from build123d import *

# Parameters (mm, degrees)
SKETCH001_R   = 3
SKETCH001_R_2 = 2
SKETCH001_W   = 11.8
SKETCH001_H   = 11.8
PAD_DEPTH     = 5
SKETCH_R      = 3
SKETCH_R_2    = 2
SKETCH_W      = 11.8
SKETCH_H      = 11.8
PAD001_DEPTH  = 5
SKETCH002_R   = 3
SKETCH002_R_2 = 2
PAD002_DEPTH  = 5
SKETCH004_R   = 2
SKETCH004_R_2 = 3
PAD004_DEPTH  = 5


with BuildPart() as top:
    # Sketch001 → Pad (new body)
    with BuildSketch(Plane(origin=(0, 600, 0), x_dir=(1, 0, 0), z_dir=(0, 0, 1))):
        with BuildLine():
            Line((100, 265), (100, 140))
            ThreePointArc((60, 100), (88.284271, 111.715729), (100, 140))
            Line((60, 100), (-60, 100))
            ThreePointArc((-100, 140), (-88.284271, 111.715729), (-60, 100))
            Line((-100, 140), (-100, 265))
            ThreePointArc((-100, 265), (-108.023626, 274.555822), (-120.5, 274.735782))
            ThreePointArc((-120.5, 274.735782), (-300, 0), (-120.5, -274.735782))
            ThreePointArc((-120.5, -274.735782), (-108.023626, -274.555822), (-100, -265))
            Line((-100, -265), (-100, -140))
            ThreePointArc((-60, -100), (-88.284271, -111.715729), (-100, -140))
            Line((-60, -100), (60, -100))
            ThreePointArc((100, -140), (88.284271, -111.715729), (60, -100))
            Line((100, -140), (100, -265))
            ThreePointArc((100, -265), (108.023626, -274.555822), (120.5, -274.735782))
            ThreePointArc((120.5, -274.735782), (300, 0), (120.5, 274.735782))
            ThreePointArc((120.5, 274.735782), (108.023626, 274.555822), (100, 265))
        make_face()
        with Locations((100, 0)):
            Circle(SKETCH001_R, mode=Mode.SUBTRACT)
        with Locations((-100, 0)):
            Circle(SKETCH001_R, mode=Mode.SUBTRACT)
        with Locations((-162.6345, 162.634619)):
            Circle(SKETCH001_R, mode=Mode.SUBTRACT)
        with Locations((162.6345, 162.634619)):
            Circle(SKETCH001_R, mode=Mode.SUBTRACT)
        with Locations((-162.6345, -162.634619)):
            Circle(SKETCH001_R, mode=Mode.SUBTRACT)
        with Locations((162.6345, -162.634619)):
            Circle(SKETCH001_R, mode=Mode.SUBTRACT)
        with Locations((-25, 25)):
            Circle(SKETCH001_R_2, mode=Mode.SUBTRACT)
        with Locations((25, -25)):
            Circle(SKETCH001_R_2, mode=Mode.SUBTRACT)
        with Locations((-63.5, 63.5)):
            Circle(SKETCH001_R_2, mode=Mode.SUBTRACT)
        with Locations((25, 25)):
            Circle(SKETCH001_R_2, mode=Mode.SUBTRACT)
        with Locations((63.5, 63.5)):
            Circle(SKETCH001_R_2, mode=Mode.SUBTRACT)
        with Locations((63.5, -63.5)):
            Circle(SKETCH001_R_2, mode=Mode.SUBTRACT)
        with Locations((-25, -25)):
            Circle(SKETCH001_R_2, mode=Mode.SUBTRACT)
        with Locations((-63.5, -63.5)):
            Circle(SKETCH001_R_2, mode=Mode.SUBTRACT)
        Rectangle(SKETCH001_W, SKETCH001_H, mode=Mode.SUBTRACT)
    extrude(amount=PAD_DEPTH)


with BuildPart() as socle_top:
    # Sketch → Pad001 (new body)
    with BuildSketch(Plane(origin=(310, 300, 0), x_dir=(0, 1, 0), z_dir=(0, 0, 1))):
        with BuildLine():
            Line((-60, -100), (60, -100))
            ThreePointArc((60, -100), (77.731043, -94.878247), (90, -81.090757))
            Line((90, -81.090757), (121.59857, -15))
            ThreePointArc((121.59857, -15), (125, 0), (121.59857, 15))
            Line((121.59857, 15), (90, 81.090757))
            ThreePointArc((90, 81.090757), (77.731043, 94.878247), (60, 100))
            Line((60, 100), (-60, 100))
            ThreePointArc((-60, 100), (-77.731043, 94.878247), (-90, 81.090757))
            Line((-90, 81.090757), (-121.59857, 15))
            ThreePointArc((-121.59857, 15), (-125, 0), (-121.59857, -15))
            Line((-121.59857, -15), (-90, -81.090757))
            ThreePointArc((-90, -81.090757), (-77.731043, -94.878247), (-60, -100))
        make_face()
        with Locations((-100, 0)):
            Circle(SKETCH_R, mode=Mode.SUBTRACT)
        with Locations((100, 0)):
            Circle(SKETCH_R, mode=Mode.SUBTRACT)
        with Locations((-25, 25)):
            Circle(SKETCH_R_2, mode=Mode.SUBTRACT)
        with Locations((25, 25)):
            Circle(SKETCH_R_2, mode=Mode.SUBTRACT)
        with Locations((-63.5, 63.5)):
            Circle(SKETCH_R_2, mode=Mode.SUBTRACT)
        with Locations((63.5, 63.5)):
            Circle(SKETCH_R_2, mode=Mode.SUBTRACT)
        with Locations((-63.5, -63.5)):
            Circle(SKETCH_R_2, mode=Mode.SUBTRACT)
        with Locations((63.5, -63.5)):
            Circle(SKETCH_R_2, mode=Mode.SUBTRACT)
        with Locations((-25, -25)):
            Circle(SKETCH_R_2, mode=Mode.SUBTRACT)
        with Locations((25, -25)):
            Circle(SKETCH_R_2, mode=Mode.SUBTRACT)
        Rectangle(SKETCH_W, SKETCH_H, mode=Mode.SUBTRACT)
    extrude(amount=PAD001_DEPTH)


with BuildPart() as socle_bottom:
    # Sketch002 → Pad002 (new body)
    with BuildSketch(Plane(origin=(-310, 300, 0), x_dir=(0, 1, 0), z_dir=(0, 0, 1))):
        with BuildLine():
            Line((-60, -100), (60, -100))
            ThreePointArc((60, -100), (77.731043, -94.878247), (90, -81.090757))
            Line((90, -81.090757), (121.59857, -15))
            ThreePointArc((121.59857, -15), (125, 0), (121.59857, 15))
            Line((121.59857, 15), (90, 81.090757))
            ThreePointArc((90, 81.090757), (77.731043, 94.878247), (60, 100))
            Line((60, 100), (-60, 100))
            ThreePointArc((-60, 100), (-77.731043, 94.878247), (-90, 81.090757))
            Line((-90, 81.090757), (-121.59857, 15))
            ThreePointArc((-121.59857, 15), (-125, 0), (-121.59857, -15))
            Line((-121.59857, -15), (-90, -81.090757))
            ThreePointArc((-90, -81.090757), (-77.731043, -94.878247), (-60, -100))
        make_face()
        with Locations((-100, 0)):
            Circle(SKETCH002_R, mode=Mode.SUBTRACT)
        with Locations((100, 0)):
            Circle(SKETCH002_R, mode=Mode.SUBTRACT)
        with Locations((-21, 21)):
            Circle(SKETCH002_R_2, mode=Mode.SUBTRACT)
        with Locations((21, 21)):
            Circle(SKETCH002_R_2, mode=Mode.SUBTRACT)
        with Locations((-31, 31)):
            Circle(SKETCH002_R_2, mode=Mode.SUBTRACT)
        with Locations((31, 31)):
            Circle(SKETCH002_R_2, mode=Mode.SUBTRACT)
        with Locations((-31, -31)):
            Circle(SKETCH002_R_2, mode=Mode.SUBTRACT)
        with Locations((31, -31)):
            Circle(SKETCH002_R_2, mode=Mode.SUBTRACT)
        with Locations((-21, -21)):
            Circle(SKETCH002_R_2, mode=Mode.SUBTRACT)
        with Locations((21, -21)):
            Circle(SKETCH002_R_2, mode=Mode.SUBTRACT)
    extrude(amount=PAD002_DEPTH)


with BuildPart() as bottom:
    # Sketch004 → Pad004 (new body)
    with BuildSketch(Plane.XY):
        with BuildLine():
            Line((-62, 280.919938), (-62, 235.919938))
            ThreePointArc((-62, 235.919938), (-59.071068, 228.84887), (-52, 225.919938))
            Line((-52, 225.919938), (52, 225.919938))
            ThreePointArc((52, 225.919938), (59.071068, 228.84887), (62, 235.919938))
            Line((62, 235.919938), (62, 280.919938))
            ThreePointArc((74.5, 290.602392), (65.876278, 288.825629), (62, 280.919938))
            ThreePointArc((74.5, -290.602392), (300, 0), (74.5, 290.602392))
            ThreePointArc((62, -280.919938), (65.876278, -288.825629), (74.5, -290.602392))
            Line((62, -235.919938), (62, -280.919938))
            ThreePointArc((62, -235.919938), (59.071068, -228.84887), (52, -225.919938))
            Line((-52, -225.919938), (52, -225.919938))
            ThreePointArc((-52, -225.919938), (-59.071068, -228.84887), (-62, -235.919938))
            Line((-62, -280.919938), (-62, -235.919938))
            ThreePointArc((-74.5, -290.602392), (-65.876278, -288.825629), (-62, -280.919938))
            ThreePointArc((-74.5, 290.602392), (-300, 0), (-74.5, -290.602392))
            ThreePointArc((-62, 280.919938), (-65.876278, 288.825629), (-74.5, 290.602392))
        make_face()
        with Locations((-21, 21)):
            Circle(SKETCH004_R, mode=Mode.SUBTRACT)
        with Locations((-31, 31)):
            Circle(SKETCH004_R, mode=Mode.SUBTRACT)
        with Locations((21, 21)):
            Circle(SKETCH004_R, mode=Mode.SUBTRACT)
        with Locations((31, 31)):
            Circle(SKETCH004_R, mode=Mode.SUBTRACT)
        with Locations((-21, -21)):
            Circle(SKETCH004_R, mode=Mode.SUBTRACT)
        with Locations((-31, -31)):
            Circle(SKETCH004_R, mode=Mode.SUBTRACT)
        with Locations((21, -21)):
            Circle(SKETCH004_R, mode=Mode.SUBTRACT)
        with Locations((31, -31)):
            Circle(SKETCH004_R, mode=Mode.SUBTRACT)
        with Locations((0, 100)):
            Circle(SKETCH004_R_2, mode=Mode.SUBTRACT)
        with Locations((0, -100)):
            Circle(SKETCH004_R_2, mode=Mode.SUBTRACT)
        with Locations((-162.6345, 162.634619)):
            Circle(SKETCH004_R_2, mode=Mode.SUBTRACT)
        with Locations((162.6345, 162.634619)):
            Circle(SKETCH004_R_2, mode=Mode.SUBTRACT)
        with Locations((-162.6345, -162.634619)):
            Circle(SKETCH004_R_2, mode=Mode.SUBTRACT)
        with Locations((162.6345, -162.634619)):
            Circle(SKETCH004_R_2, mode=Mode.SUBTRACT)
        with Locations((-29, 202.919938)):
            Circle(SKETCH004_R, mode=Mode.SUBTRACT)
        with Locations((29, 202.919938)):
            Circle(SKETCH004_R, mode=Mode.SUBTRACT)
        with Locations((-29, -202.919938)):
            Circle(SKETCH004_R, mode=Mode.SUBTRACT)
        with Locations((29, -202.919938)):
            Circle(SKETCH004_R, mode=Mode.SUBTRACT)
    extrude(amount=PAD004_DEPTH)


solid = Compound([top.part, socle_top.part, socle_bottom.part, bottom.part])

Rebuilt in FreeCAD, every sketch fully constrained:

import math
import FreeCAD as App
import Part
import Sketcher
Q = App.Units.Quantity

doc = App.newDocument("Part")
body = doc.addObject("PartDesign::Body", "Body")

sketch1 = body.newObject("Sketcher::SketchObject", "Sketch")
sketch1.AttachmentSupport = (doc.getObject("XY_Plane"), [""])
sketch1.MapMode = "FlatFace"
sketch1.addGeometry([
    Part.LineSegment(App.Vector(100, 865, 0), App.Vector(100, 740, 0)),
    Part.ArcOfCircle(Part.Circle(App.Vector(59.999999, 740.000001, 0), App.Vector(0, 0, 1), 40.000001), math.radians(-89.999999), math.radians(-0.000001)),
    Part.LineSegment(App.Vector(60, 700, 0), App.Vector(-60, 700, 0)),
    Part.ArcOfCircle(Part.Circle(App.Vector(-59.999999, 740.000001, 0), App.Vector(0, 0, 1), 40.000001), math.radians(-179.999999), math.radians(-90.000001)),
    Part.LineSegment(App.Vector(-100, 740, 0), App.Vector(-100, 865, 0)),
    Part.ArcOfCircle(Part.Circle(App.Vector(-114.458551, 861.00622, 0), App.Vector(0, 0, 1), 14.999999), math.radians(15.441362), math.radians(113.751038)),
    Part.ArcOfCircle(Part.Circle(App.Vector(0, 600, 0), App.Vector(0, 0, 1), 300), math.radians(113.682411), math.radians(246.317589)),
    Part.ArcOfCircle(Part.Circle(App.Vector(-114.458551, 338.99378, 0), App.Vector(0, 0, 1), 14.999999), math.radians(-113.751038), math.radians(-15.441362)),
    Part.LineSegment(App.Vector(-100, 335, 0), App.Vector(-100, 460, 0)),
    Part.ArcOfCircle(Part.Circle(App.Vector(-59.999999, 459.999999, 0), App.Vector(0, 0, 1), 40.000001), math.radians(90.000001), math.radians(179.999999)),
    Part.LineSegment(App.Vector(-60, 500, 0), App.Vector(60, 500, 0)),
    Part.ArcOfCircle(Part.Circle(App.Vector(59.999999, 459.999999, 0), App.Vector(0, 0, 1), 40.000001), math.radians(0.000001), math.radians(89.999999)),
    Part.LineSegment(App.Vector(100, 460, 0), App.Vector(100, 335, 0)),
    Part.ArcOfCircle(Part.Circle(App.Vector(114.458551, 338.99378, 0), App.Vector(0, 0, 1), 14.999999), math.radians(-164.558638), math.radians(-66.248962)),
    Part.ArcOfCircle(Part.Circle(App.Vector(0, 600, 0), App.Vector(0, 0, 1), 300), math.radians(-66.317589), math.radians(66.317589)),
    Part.ArcOfCircle(Part.Circle(App.Vector(114.458551, 861.00622, 0), App.Vector(0, 0, 1), 14.999999), math.radians(66.248962), math.radians(164.558638)),
    Part.Circle(App.Vector(-162.6345, 437.365381, 0), App.Vector(0, 0, 1), 3),
    Part.Circle(App.Vector(-63.5, 536.5, 0), App.Vector(0, 0, 1), 2),
    Part.Circle(App.Vector(-25, 575, 0), App.Vector(0, 0, 1), 2),
    Part.Circle(App.Vector(162.6345, 437.365381, 0), App.Vector(0, 0, 1), 3),
    Part.Circle(App.Vector(63.5, 536.5, 0), App.Vector(0, 0, 1), 2),
    Part.Circle(App.Vector(25, 575, 0), App.Vector(0, 0, 1), 2),
    Part.Circle(App.Vector(-100, 600, 0), App.Vector(0, 0, 1), 3),
    Part.Circle(App.Vector(-25, 625, 0), App.Vector(0, 0, 1), 2),
    Part.Circle(App.Vector(-63.5, 663.5, 0), App.Vector(0, 0, 1), 2),
    Part.Circle(App.Vector(-162.6345, 762.634619, 0), App.Vector(0, 0, 1), 3),
    Part.LineSegment(App.Vector(5.9, 594.1, 0), App.Vector(-5.9, 594.1, 0)),
    Part.LineSegment(App.Vector(-5.9, 594.1, 0), App.Vector(-5.9, 605.9, 0)),
    Part.LineSegment(App.Vector(-5.9, 605.9, 0), App.Vector(5.9, 605.9, 0)),
    Part.LineSegment(App.Vector(5.9, 605.9, 0), App.Vector(5.9, 594.1, 0)),
    Part.Circle(App.Vector(25, 625, 0), App.Vector(0, 0, 1), 2),
    Part.Circle(App.Vector(63.5, 663.5, 0), App.Vector(0, 0, 1), 2),
    Part.Circle(App.Vector(100, 600, 0), App.Vector(0, 0, 1), 3),
    Part.Circle(App.Vector(162.6345, 762.634619, 0), App.Vector(0, 0, 1), 3),
], False)
sketch1.addConstraint([
    Sketcher.Constraint("Tangent", 0, 2, 1, 2),
    Sketcher.Constraint("Tangent", 1, 1, 2, 1),
    Sketcher.Constraint("Tangent", 2, 2, 3, 2),
    Sketcher.Constraint("Tangent", 3, 1, 4, 1),
    Sketcher.Constraint("Coincident", 4, 2, 5, 1),
    Sketcher.Constraint("Coincident", 5, 2, 6, 1),
    Sketcher.Constraint("Coincident", 6, 2, 7, 1),
    Sketcher.Constraint("Coincident", 7, 2, 8, 1),
    Sketcher.Constraint("Tangent", 8, 2, 9, 2),
    Sketcher.Constraint("Tangent", 9, 1, 10, 1),
    Sketcher.Constraint("Tangent", 10, 2, 11, 2),
    Sketcher.Constraint("Tangent", 11, 1, 12, 1),
    Sketcher.Constraint("Coincident", 12, 2, 13, 1),
    Sketcher.Constraint("Coincident", 13, 2, 14, 1),
    Sketcher.Constraint("Coincident", 14, 2, 15, 1),
    Sketcher.Constraint("Coincident", 15, 2, 0, 1),
    Sketcher.Constraint("Coincident", 26, 2, 27, 1),
    Sketcher.Constraint("Coincident", 27, 2, 28, 1),
    Sketcher.Constraint("Coincident", 28, 2, 29, 1),
    Sketcher.Constraint("Coincident", 29, 2, 26, 1),
    Sketcher.Constraint("Vertical", 0),
    Sketcher.Constraint("Horizontal", 2),
    Sketcher.Constraint("Vertical", 4),
    Sketcher.Constraint("Vertical", 8),
    Sketcher.Constraint("Horizontal", 10),
    Sketcher.Constraint("Vertical", 12),
    Sketcher.Constraint("Horizontal", 26),
    Sketcher.Constraint("Vertical", 27),
    Sketcher.Constraint("Horizontal", 28),
    Sketcher.Constraint("Vertical", 29),
    Sketcher.Constraint("Coincident", 14, 3, 6, 3),
    Sketcher.Constraint("Equal", 1, 3),
    Sketcher.Constraint("Equal", 5, 7),
    Sketcher.Constraint("Equal", 3, 9),
    Sketcher.Constraint("Equal", 9, 11),
    Sketcher.Constraint("Equal", 7, 13),
    Sketcher.Constraint("Equal", 6, 14),
    Sketcher.Constraint("Equal", 13, 15),
    Sketcher.Constraint("Equal", 17, 18),
    Sketcher.Constraint("Equal", 16, 19),
    Sketcher.Constraint("Equal", 18, 20),
    Sketcher.Constraint("Equal", 20, 21),
    Sketcher.Constraint("Equal", 19, 22),
    Sketcher.Constraint("Equal", 21, 23),
    Sketcher.Constraint("Equal", 23, 24),
    Sketcher.Constraint("Equal", 22, 25),
    Sketcher.Constraint("Equal", 24, 30),
    Sketcher.Constraint("Equal", 30, 31),
    Sketcher.Constraint("Equal", 25, 32),
    Sketcher.Constraint("Equal", 32, 33),
    Sketcher.Constraint("Symmetric", 7, 3, 13, 3, -2),
    Sketcher.Constraint("Symmetric", 5, 3, 15, 3, -2),
    Sketcher.Constraint("Symmetric", 16, 3, 19, 3, -2),
    Sketcher.Constraint("Symmetric", 17, 3, 20, 3, -2),
    Sketcher.Constraint("Symmetric", 18, 3, 21, 3, -2),
    Sketcher.Constraint("Symmetric", 23, 3, 30, 3, -2),
    Sketcher.Constraint("Symmetric", 24, 3, 31, 3, -2),
    Sketcher.Constraint("Symmetric", 22, 3, 32, 3, -2),
    Sketcher.Constraint("Symmetric", 25, 3, 33, 3, -2),
    Sketcher.Constraint("PointOnObject", 6, 3, -2),
    Sketcher.Constraint("Horizontal", 14, 3, 22, 3),
    Sketcher.Constraint("Horizontal", 7, 2, 12, 2),
    Sketcher.Constraint("Horizontal", 4, 2, 15, 2),
    Sketcher.Constraint("Vertical", 5, 3, 7, 3),
    Sketcher.Constraint("Vertical", 3, 3, 9, 3),
    Sketcher.Constraint("Vertical", 18, 3, 23, 3),
    Sketcher.Constraint("Vertical", 17, 3, 24, 3),
    Sketcher.Constraint("Vertical", 16, 3, 25, 3),
    Sketcher.Constraint("Vertical", 32, 3, 0, 2),
    Sketcher.Constraint("Vertical", 5, 2, 6, 2),
    Sketcher.Constraint("Equal", 4, 8),
    Sketcher.Constraint("Equal", 28, 27),
    Sketcher.Constraint("Diameter", 16, Q("6 mm")),
    Sketcher.Constraint("Diameter", 17, Q("4 mm")),
    Sketcher.Constraint("Radius", 1, Q("40.000001 mm")),
    Sketcher.Constraint("Radius", 5, Q("14.999999 mm")),
    Sketcher.Constraint("Radius", 6, Q("300 mm")),
    Sketcher.Constraint("DistanceX", 2, 2, 2, 1, Q("120 mm")),
    Sketcher.Constraint("DistanceY", 0, 2, 0, 1, Q("125 mm")),
    Sketcher.Constraint("DistanceX", 26, 2, 26, 1, Q("11.8 mm")),
    Sketcher.Constraint("DistanceY", -1, 1, 1, 3, Q("740.000001 mm")),
    Sketcher.Constraint("DistanceY", -1, 1, 6, 3, Q("600 mm")),
    Sketcher.Constraint("DistanceX", 18, 3, -1, 1, Q("25 mm")),
    Sketcher.Constraint("DistanceY", -1, 1, 18, 3, Q("575 mm")),
    Sketcher.Constraint("DistanceY", -1, 1, 23, 3, Q("625 mm")),
    Sketcher.Constraint("DistanceX", 17, 3, 20, 3, Q("127 mm")),
    Sketcher.Constraint("DistanceX", 6, 2, 17, 3, Q("57 mm")),
    Sketcher.Constraint("DistanceY", -1, 1, 17, 3, Q("536.5 mm")),
    Sketcher.Constraint("DistanceY", -1, 1, 24, 3, Q("663.5 mm")),
    Sketcher.Constraint("DistanceX", 26, 2, -1, 1, Q("5.9 mm")),
    Sketcher.Constraint("DistanceY", -1, 1, 26, 2, Q("594.1 mm")),
    Sketcher.Constraint("DistanceX", 16, 3, -1, 1, Q("162.6345 mm")),
    Sketcher.Constraint("DistanceY", 7, 3, 16, 3, Q("98.371601 mm")),
    Sketcher.Constraint("DistanceY", 25, 3, 5, 3, Q("98.371601 mm")),
])
pad1 = body.newObject("PartDesign::Pad", "Pad")
pad1.Profile = sketch1
pad1.Length = 5
body2 = doc.addObject("PartDesign::Body", "Body001")

sketch2 = body2.newObject("Sketcher::SketchObject", "Sketch001")
sketch2.AttachmentSupport = (doc.getObject("XY_Plane001"), [""])
sketch2.MapMode = "FlatFace"
sketch2.addGeometry([
    Part.LineSegment(App.Vector(410, 240, 0), App.Vector(410, 360, 0)),
    Part.ArcOfCircle(Part.Circle(App.Vector(376.7, 360, 0), App.Vector(0, 0, 1), 33.3), math.radians(0), math.radians(64)),
    Part.LineSegment(App.Vector(391.1, 390, 0), App.Vector(325, 421.6, 0)),
    Part.ArcOfCircle(Part.Circle(App.Vector(310, 390.2, 0), App.Vector(0, 0, 1), 34.8), math.radians(64), math.radians(116)),
    Part.LineSegment(App.Vector(295, 421.6, 0), App.Vector(228.9, 390, 0)),
    Part.ArcOfCircle(Part.Circle(App.Vector(243.3, 360, 0), App.Vector(0, 0, 1), 33.3), math.radians(116), math.radians(180)),
    Part.LineSegment(App.Vector(210, 360, 0), App.Vector(210, 240, 0)),
    Part.ArcOfCircle(Part.Circle(App.Vector(243.3, 240, 0), App.Vector(0, 0, 1), 33.3), math.radians(-180), math.radians(-116)),
    Part.LineSegment(App.Vector(228.9, 210, 0), App.Vector(295, 178.4, 0)),
    Part.ArcOfCircle(Part.Circle(App.Vector(310, 209.8, 0), App.Vector(0, 0, 1), 34.8), math.radians(-116), math.radians(-64)),
    Part.LineSegment(App.Vector(325, 178.4, 0), App.Vector(391.1, 210, 0)),
    Part.ArcOfCircle(Part.Circle(App.Vector(376.7, 240, 0), App.Vector(0, 0, 1), 33.3), math.radians(-64), math.radians(0)),
    Part.Circle(App.Vector(373.5, 236.5, 0), App.Vector(0, 0, 1), 2),
    Part.Circle(App.Vector(335, 275, 0), App.Vector(0, 0, 1), 2),
    Part.Circle(App.Vector(373.5, 363.5, 0), App.Vector(0, 0, 1), 2),
    Part.Circle(App.Vector(335, 325, 0), App.Vector(0, 0, 1), 2),
    Part.Circle(App.Vector(310, 200, 0), App.Vector(0, 0, 1), 3),
    Part.LineSegment(App.Vector(315.9, 305.9, 0), App.Vector(315.9, 294.1, 0)),
    Part.LineSegment(App.Vector(315.9, 294.1, 0), App.Vector(304.1, 294.1, 0)),
    Part.LineSegment(App.Vector(304.1, 294.1, 0), App.Vector(304.1, 305.9, 0)),
    Part.LineSegment(App.Vector(304.1, 305.9, 0), App.Vector(315.9, 305.9, 0)),
    Part.Circle(App.Vector(285, 275, 0), App.Vector(0, 0, 1), 2),
    Part.Circle(App.Vector(246.5, 236.5, 0), App.Vector(0, 0, 1), 2),
    Part.Circle(App.Vector(285, 325, 0), App.Vector(0, 0, 1), 2),
    Part.Circle(App.Vector(310, 400, 0), App.Vector(0, 0, 1), 3),
    Part.Circle(App.Vector(246.5, 363.5, 0), App.Vector(0, 0, 1), 2),
], False)
sketch2.addConstraint([
    Sketcher.Constraint("Tangent", 0, 2, 1, 1),
    Sketcher.Constraint("Tangent", 1, 2, 2, 1),
    Sketcher.Constraint("Tangent", 2, 2, 3, 1),
    Sketcher.Constraint("Tangent", 3, 2, 4, 1),
    Sketcher.Constraint("Tangent", 4, 2, 5, 1),
    Sketcher.Constraint("Tangent", 5, 2, 6, 1),
    Sketcher.Constraint("Tangent", 6, 2, 7, 1),
    Sketcher.Constraint("Tangent", 7, 2, 8, 1),
    Sketcher.Constraint("Tangent", 8, 2, 9, 1),
    Sketcher.Constraint("Tangent", 9, 2, 10, 1),
    Sketcher.Constraint("Tangent", 10, 2, 11, 1),
    Sketcher.Constraint("Tangent", 11, 2, 0, 1),
    Sketcher.Constraint("Coincident", 17, 2, 18, 1),
    Sketcher.Constraint("Coincident", 18, 2, 19, 1),
    Sketcher.Constraint("Coincident", 19, 2, 20, 1),
    Sketcher.Constraint("Coincident", 20, 2, 17, 1),
    Sketcher.Constraint("Vertical", 0),
    Sketcher.Constraint("Vertical", 6),
    Sketcher.Constraint("Vertical", 17),
    Sketcher.Constraint("Horizontal", 18),
    Sketcher.Constraint("Vertical", 19),
    Sketcher.Constraint("Horizontal", 20),
    Sketcher.Constraint("Equal", 1, 5),
    Sketcher.Constraint("Equal", 5, 7),
    Sketcher.Constraint("Equal", 3, 9),
    Sketcher.Constraint("Equal", 7, 11),
    Sketcher.Constraint("Equal", 12, 13),
    Sketcher.Constraint("Equal", 13, 14),
    Sketcher.Constraint("Equal", 14, 15),
    Sketcher.Constraint("Equal", 15, 21),
    Sketcher.Constraint("Equal", 21, 22),
    Sketcher.Constraint("Equal", 22, 23),
    Sketcher.Constraint("Equal", 16, 24),
    Sketcher.Constraint("Equal", 23, 25),
    Sketcher.Constraint("Parallel", 2, 8),
    Sketcher.Constraint("Parallel", 4, 10),
    Sketcher.Constraint("Horizontal", 1, 3, 5, 3),
    Sketcher.Constraint("Horizontal", 7, 3, 11, 3),
    Sketcher.Constraint("Horizontal", 13, 3, 21, 3),
    Sketcher.Constraint("Horizontal", 12, 3, 22, 3),
    Sketcher.Constraint("Horizontal", 15, 3, 23, 3),
    Sketcher.Constraint("Horizontal", 14, 3, 25, 3),
    Sketcher.Constraint("Horizontal", 2, 2, 3, 2),
    Sketcher.Constraint("Vertical", 12, 3, 14, 3),
    Sketcher.Constraint("Vertical", 13, 3, 15, 3),
    Sketcher.Constraint("Vertical", 9, 3, 16, 3),
    Sketcher.Constraint("Vertical", 21, 3, 23, 3),
    Sketcher.Constraint("Vertical", 16, 3, 24, 3),
    Sketcher.Constraint("Vertical", 22, 3, 25, 3),
    Sketcher.Constraint("Equal", 20, 17),
    Sketcher.Constraint("Diameter", 12, Q("4 mm")),
    Sketcher.Constraint("Diameter", 16, Q("6 mm")),
    Sketcher.Constraint("DistanceY", 0, 1, 0, 2, Q("120 mm")),
    Sketcher.Constraint("DistanceX", 18, 2, 18, 1, Q("11.8 mm")),
    Sketcher.Constraint("DistanceY", -1, 1, 1, 3, Q("359.999999 mm")),
    Sketcher.Constraint("DistanceX", -1, 1, 3, 3, Q("310 mm")),
    Sketcher.Constraint("DistanceX", -1, 1, 13, 3, Q("335 mm")),
    Sketcher.Constraint("DistanceY", -1, 1, 13, 3, Q("275 mm")),
    Sketcher.Constraint("DistanceY", -1, 1, 15, 3, Q("325 mm")),
    Sketcher.Constraint("DistanceY", -1, 1, 16, 3, Q("200 mm")),
    Sketcher.Constraint("DistanceX", -1, 1, 21, 3, Q("285 mm")),
    Sketcher.Constraint("DistanceY", -1, 1, 24, 3, Q("400 mm")),
    Sketcher.Constraint("DistanceX", -1, 1, 0, 2, Q("410 mm")),
    Sketcher.Constraint("DistanceY", -1, 1, 1, 2, Q("390 mm")),
    Sketcher.Constraint("DistanceX", -1, 1, 2, 2, Q("325 mm")),
    Sketcher.Constraint("DistanceY", 12, 3, 14, 3, Q("127 mm")),
    Sketcher.Constraint("DistanceX", -1, 1, 12, 3, Q("373.5 mm")),
    Sketcher.Constraint("DistanceY", -1, 1, 12, 3, Q("236.5 mm")),
    Sketcher.Constraint("DistanceX", -1, 1, 22, 3, Q("246.5 mm")),
    Sketcher.Constraint("DistanceX", -1, 1, 17, 2, Q("315.9 mm")),
    Sketcher.Constraint("DistanceY", -1, 1, 17, 2, Q("294.1 mm")),
    Sketcher.Constraint("Radius", 1, Q("33.252508 mm")),
])
pad2 = body2.newObject("PartDesign::Pad", "Pad001")
pad2.Profile = sketch2
pad2.Length = 5
body3 = doc.addObject("PartDesign::Body", "Body002")

sketch3 = body3.newObject("Sketcher::SketchObject", "Sketch002")
sketch3.AttachmentSupport = (doc.getObject("XY_Plane002"), [""])
sketch3.MapMode = "FlatFace"
sketch3.addGeometry([
    Part.LineSegment(App.Vector(-210, 240, 0), App.Vector(-210, 360, 0)),
    Part.ArcOfCircle(Part.Circle(App.Vector(-243.3, 360, 0), App.Vector(0, 0, 1), 33.3), math.radians(0), math.radians(64)),
    Part.LineSegment(App.Vector(-228.9, 390, 0), App.Vector(-295, 421.6, 0)),
    Part.ArcOfCircle(Part.Circle(App.Vector(-310, 390.2, 0), App.Vector(0, 0, 1), 34.8), math.radians(64), math.radians(116)),
    Part.LineSegment(App.Vector(-325, 421.6, 0), App.Vector(-391.1, 390, 0)),
    Part.ArcOfCircle(Part.Circle(App.Vector(-376.7, 360, 0), App.Vector(0, 0, 1), 33.3), math.radians(116), math.radians(180)),
    Part.LineSegment(App.Vector(-410, 360, 0), App.Vector(-410, 240, 0)),
    Part.ArcOfCircle(Part.Circle(App.Vector(-376.7, 240, 0), App.Vector(0, 0, 1), 33.3), math.radians(-180), math.radians(-116)),
    Part.LineSegment(App.Vector(-391.1, 210, 0), App.Vector(-325, 178.4, 0)),
    Part.ArcOfCircle(Part.Circle(App.Vector(-310, 209.8, 0), App.Vector(0, 0, 1), 34.8), math.radians(-116), math.radians(-64)),
    Part.LineSegment(App.Vector(-295, 178.4, 0), App.Vector(-228.9, 210, 0)),
    Part.ArcOfCircle(Part.Circle(App.Vector(-243.3, 240, 0), App.Vector(0, 0, 1), 33.3), math.radians(-64), math.radians(0)),
    Part.Circle(App.Vector(-279, 269, 0), App.Vector(0, 0, 1), 2),
    Part.Circle(App.Vector(-289, 279, 0), App.Vector(0, 0, 1), 2),
    Part.Circle(App.Vector(-279, 331, 0), App.Vector(0, 0, 1), 2),
    Part.Circle(App.Vector(-289, 321, 0), App.Vector(0, 0, 1), 2),
    Part.Circle(App.Vector(-310, 200, 0), App.Vector(0, 0, 1), 3),
    Part.Circle(App.Vector(-331, 279, 0), App.Vector(0, 0, 1), 2),
    Part.Circle(App.Vector(-341, 269, 0), App.Vector(0, 0, 1), 2),
    Part.Circle(App.Vector(-310, 400, 0), App.Vector(0, 0, 1), 3),
    Part.Circle(App.Vector(-331, 321, 0), App.Vector(0, 0, 1), 2),
    Part.Circle(App.Vector(-341, 331, 0), App.Vector(0, 0, 1), 2),
], False)
sketch3.addConstraint([
    Sketcher.Constraint("Tangent", 0, 2, 1, 1),
    Sketcher.Constraint("Tangent", 1, 2, 2, 1),
    Sketcher.Constraint("Tangent", 2, 2, 3, 1),
    Sketcher.Constraint("Tangent", 3, 2, 4, 1),
    Sketcher.Constraint("Tangent", 4, 2, 5, 1),
    Sketcher.Constraint("Tangent", 5, 2, 6, 1),
    Sketcher.Constraint("Tangent", 6, 2, 7, 1),
    Sketcher.Constraint("Tangent", 7, 2, 8, 1),
    Sketcher.Constraint("Tangent", 8, 2, 9, 1),
    Sketcher.Constraint("Tangent", 9, 2, 10, 1),
    Sketcher.Constraint("Tangent", 10, 2, 11, 1),
    Sketcher.Constraint("Tangent", 11, 2, 0, 1),
    Sketcher.Constraint("Vertical", 0),
    Sketcher.Constraint("Vertical", 6),
    Sketcher.Constraint("Equal", 1, 5),
    Sketcher.Constraint("Equal", 5, 7),
    Sketcher.Constraint("Equal", 3, 9),
    Sketcher.Constraint("Equal", 7, 11),
    Sketcher.Constraint("Equal", 12, 13),
    Sketcher.Constraint("Equal", 13, 14),
    Sketcher.Constraint("Equal", 14, 15),
    Sketcher.Constraint("Equal", 15, 17),
    Sketcher.Constraint("Equal", 17, 18),
    Sketcher.Constraint("Equal", 16, 19),
    Sketcher.Constraint("Equal", 18, 20),
    Sketcher.Constraint("Equal", 20, 21),
    Sketcher.Constraint("Parallel", 2, 8),
    Sketcher.Constraint("Parallel", 4, 10),
    Sketcher.Constraint("Horizontal", 1, 3, 5, 3),
    Sketcher.Constraint("Horizontal", 7, 3, 11, 3),
    Sketcher.Constraint("Horizontal", 13, 3, 17, 3),
    Sketcher.Constraint("Horizontal", 12, 3, 18, 3),
    Sketcher.Constraint("Horizontal", 15, 3, 20, 3),
    Sketcher.Constraint("Horizontal", 14, 3, 21, 3),
    Sketcher.Constraint("Horizontal", 2, 2, 3, 2),
    Sketcher.Constraint("Vertical", 12, 3, 14, 3),
    Sketcher.Constraint("Vertical", 13, 3, 15, 3),
    Sketcher.Constraint("Vertical", 9, 3, 16, 3),
    Sketcher.Constraint("Vertical", 16, 3, 19, 3),
    Sketcher.Constraint("Vertical", 17, 3, 20, 3),
    Sketcher.Constraint("Vertical", 18, 3, 21, 3),
    Sketcher.Constraint("Diameter", 12, Q("4 mm")),
    Sketcher.Constraint("Diameter", 16, Q("6 mm")),
    Sketcher.Constraint("DistanceY", 0, 1, 0, 2, Q("120 mm")),
    Sketcher.Constraint("DistanceY", -1, 1, 1, 3, Q("359.999999 mm")),
    Sketcher.Constraint("DistanceX", 3, 3, -1, 1, Q("310 mm")),
    Sketcher.Constraint("DistanceX", 12, 3, -1, 1, Q("279 mm")),
    Sketcher.Constraint("DistanceY", -1, 1, 12, 3, Q("269 mm")),
    Sketcher.Constraint("DistanceX", 13, 3, -1, 1, Q("289 mm")),
    Sketcher.Constraint("DistanceY", -1, 1, 13, 3, Q("279 mm")),
    Sketcher.Constraint("DistanceY", -1, 1, 14, 3, Q("331 mm")),
    Sketcher.Constraint("DistanceY", -1, 1, 15, 3, Q("321 mm")),
    Sketcher.Constraint("DistanceY", -1, 1, 16, 3, Q("200 mm")),
    Sketcher.Constraint("DistanceX", 17, 3, -1, 1, Q("331 mm")),
    Sketcher.Constraint("DistanceX", 18, 3, -1, 1, Q("341 mm")),
    Sketcher.Constraint("DistanceY", -1, 1, 19, 3, Q("400 mm")),
    Sketcher.Constraint("DistanceX", 0, 2, -1, 1, Q("210 mm")),
    Sketcher.Constraint("DistanceY", -1, 1, 1, 2, Q("390 mm")),
    Sketcher.Constraint("DistanceX", 2, 2, -1, 1, Q("295 mm")),
    Sketcher.Constraint("Radius", 1, Q("33.252508 mm")),
])
pad3 = body3.newObject("PartDesign::Pad", "Pad002")
pad3.Profile = sketch3
pad3.Length = 5
body4 = doc.addObject("PartDesign::Body", "Body003")

sketch4 = body4.newObject("Sketcher::SketchObject", "Sketch003")
sketch4.AttachmentSupport = (doc.getObject("XY_Plane003"), [""])
sketch4.MapMode = "FlatFace"
sketch4.addGeometry([
    Part.LineSegment(App.Vector(-62, 235.919938, 0), App.Vector(-62, 280.919938, 0)),
    Part.ArcOfCircle(Part.Circle(App.Vector(-72.000001, 280.919933, 0), App.Vector(0, 0, 1), 10.000001), math.radians(0.000031), math.radians(104.477507)),
    Part.ArcOfCircle(Part.Circle(App.Vector(0.000001, 0, 0), App.Vector(0, 0, 1), 300.000001), math.radians(104.378909), math.radians(255.621091)),
    Part.ArcOfCircle(Part.Circle(App.Vector(-72.000001, -280.919933, 0), App.Vector(0, 0, 1), 10.000001), math.radians(-104.477507), math.radians(-0.000031)),
    Part.LineSegment(App.Vector(-62, -280.919938, 0), App.Vector(-62, -235.919938, 0)),
    Part.ArcOfCircle(Part.Circle(App.Vector(-52.000001, -235.919937, 0), App.Vector(0, 0, 1), 9.999999), math.radians(89.999996), math.radians(180.000004)),
    Part.LineSegment(App.Vector(-52, -225.919938, 0), App.Vector(52, -225.919938, 0)),
    Part.ArcOfCircle(Part.Circle(App.Vector(52.000001, -235.919937, 0), App.Vector(0, 0, 1), 9.999999), math.radians(-0.000004), math.radians(90.000004)),
    Part.LineSegment(App.Vector(62, -235.919938, 0), App.Vector(62, -280.919938, 0)),
    Part.ArcOfCircle(Part.Circle(App.Vector(72.000001, -280.919933, 0), App.Vector(0, 0, 1), 10.000001), math.radians(-179.999969), math.radians(-75.522493)),
    Part.ArcOfCircle(Part.Circle(App.Vector(-0.000001, 0, 0), App.Vector(0, 0, 1), 300.000001), math.radians(-75.621091), math.radians(75.621091)),
    Part.ArcOfCircle(Part.Circle(App.Vector(72.000001, 280.919933, 0), App.Vector(0, 0, 1), 10.000001), math.radians(75.522493), math.radians(179.999969)),
    Part.LineSegment(App.Vector(62, 280.919938, 0), App.Vector(62, 235.919938, 0)),
    Part.ArcOfCircle(Part.Circle(App.Vector(52.000001, 235.919937, 0), App.Vector(0, 0, 1), 9.999999), math.radians(-90.000004), math.radians(0.000004)),
    Part.LineSegment(App.Vector(52, 225.919938, 0), App.Vector(-52, 225.919938, 0)),
    Part.ArcOfCircle(Part.Circle(App.Vector(-52.000001, 235.919937, 0), App.Vector(0, 0, 1), 9.999999), math.radians(179.999996), math.radians(270.000004)),
    Part.Circle(App.Vector(162.6345, -162.634619, 0), App.Vector(0, 0, 1), 3),
    Part.Circle(App.Vector(29, -202.919938, 0), App.Vector(0, 0, 1), 2),
    Part.Circle(App.Vector(31, -31, 0), App.Vector(0, 0, 1), 2),
    Part.Circle(App.Vector(21, -21, 0), App.Vector(0, 0, 1), 2),
    Part.Circle(App.Vector(-29, -202.919938, 0), App.Vector(0, 0, 1), 2),
    Part.Circle(App.Vector(-162.6345, -162.634619, 0), App.Vector(0, 0, 1), 3),
    Part.Circle(App.Vector(0, -100, 0), App.Vector(0, 0, 1), 3),
    Part.Circle(App.Vector(-31, -31, 0), App.Vector(0, 0, 1), 2),
    Part.Circle(App.Vector(-21, -21, 0), App.Vector(0, 0, 1), 2),
    Part.Circle(App.Vector(21, 21, 0), App.Vector(0, 0, 1), 2),
    Part.Circle(App.Vector(31, 31, 0), App.Vector(0, 0, 1), 2),
    Part.Circle(App.Vector(162.6345, 162.634619, 0), App.Vector(0, 0, 1), 3),
    Part.Circle(App.Vector(29, 202.919938, 0), App.Vector(0, 0, 1), 2),
    Part.Circle(App.Vector(-21, 21, 0), App.Vector(0, 0, 1), 2),
    Part.Circle(App.Vector(-31, 31, 0), App.Vector(0, 0, 1), 2),
    Part.Circle(App.Vector(0, 100, 0), App.Vector(0, 0, 1), 3),
    Part.Circle(App.Vector(-29, 202.919938, 0), App.Vector(0, 0, 1), 2),
    Part.Circle(App.Vector(-162.6345, 162.634619, 0), App.Vector(0, 0, 1), 3),
], False)
sketch4.addConstraint([
    Sketcher.Constraint("Tangent", 0, 2, 1, 1),
    Sketcher.Constraint("Coincident", 1, 2, 2, 1),
    Sketcher.Constraint("Coincident", 2, 2, 3, 1),
    Sketcher.Constraint("Tangent", 3, 2, 4, 1),
    Sketcher.Constraint("Tangent", 4, 2, 5, 2),
    Sketcher.Constraint("Tangent", 5, 1, 6, 1),
    Sketcher.Constraint("Tangent", 6, 2, 7, 2),
    Sketcher.Constraint("Tangent", 7, 1, 8, 1),
    Sketcher.Constraint("Tangent", 8, 2, 9, 1),
    Sketcher.Constraint("Coincident", 9, 2, 10, 1),
    Sketcher.Constraint("Coincident", 10, 2, 11, 1),
    Sketcher.Constraint("Tangent", 11, 2, 12, 1),
    Sketcher.Constraint("Tangent", 12, 2, 13, 2),
    Sketcher.Constraint("Tangent", 13, 1, 14, 1),
    Sketcher.Constraint("Tangent", 14, 2, 15, 2),
    Sketcher.Constraint("Tangent", 15, 1, 0, 1),
    Sketcher.Constraint("Vertical", 0),
    Sketcher.Constraint("Vertical", 4),
    Sketcher.Constraint("Horizontal", 6),
    Sketcher.Constraint("Vertical", 8),
    Sketcher.Constraint("Vertical", 12),
    Sketcher.Constraint("Horizontal", 14),
    Sketcher.Constraint("Coincident", 2, 3, -1, 1),
    Sketcher.Constraint("Coincident", 10, 3, -1, 1),
    Sketcher.Constraint("Equal", 1, 3),
    Sketcher.Constraint("Equal", 3, 5),
    Sketcher.Constraint("Equal", 5, 7),
    Sketcher.Constraint("Equal", 7, 9),
    Sketcher.Constraint("Equal", 2, 10),
    Sketcher.Constraint("Equal", 9, 11),
    Sketcher.Constraint("Equal", 11, 13),
    Sketcher.Constraint("Equal", 13, 15),
    Sketcher.Constraint("Equal", 17, 18),
    Sketcher.Constraint("Equal", 18, 19),
    Sketcher.Constraint("Equal", 19, 20),
    Sketcher.Constraint("Equal", 16, 21),
    Sketcher.Constraint("Equal", 21, 22),
    Sketcher.Constraint("Equal", 20, 23),
    Sketcher.Constraint("Equal", 23, 24),
    Sketcher.Constraint("Equal", 24, 25),
    Sketcher.Constraint("Equal", 25, 26),
    Sketcher.Constraint("Equal", 22, 27),
    Sketcher.Constraint("Equal", 26, 28),
    Sketcher.Constraint("Equal", 28, 29),
    Sketcher.Constraint("Equal", 29, 30),
    Sketcher.Constraint("Equal", 27, 31),
    Sketcher.Constraint("Equal", 30, 32),
    Sketcher.Constraint("Equal", 31, 33),
    Sketcher.Constraint("Symmetric", 1, 3, 9, 3, -1, 1),
    Sketcher.Constraint("Symmetric", 3, 3, 11, 3, -1, 1),
    Sketcher.Constraint("Symmetric", 24, 3, 25, 3, -1, 1),
    Sketcher.Constraint("Symmetric", 23, 3, 26, 3, -1, 1),
    Sketcher.Constraint("Symmetric", 21, 3, 27, 3, -1, 1),
    Sketcher.Constraint("Symmetric", 20, 3, 28, 3, -1, 1),
    Sketcher.Constraint("Symmetric", 19, 3, 29, 3, -1, 1),
    Sketcher.Constraint("Symmetric", 18, 3, 30, 3, -1, 1),
    Sketcher.Constraint("Symmetric", 22, 3, 31, 3, -1, 1),
    Sketcher.Constraint("Symmetric", 17, 3, 32, 3, -1, 1),
    Sketcher.Constraint("Symmetric", 16, 3, 33, 3, -1, 1),
    Sketcher.Constraint("Symmetric", 3, 3, 9, 3, -2),
    Sketcher.Constraint("Symmetric", 17, 3, 20, 3, -2),
    Sketcher.Constraint("Symmetric", 16, 3, 21, 3, -2),
    Sketcher.Constraint("Symmetric", 18, 3, 23, 3, -2),
    Sketcher.Constraint("Symmetric", 19, 3, 24, 3, -2),
    Sketcher.Constraint("PointOnObject", 22, 3, -2),
    Sketcher.Constraint("Equal", 0, 4),
    Sketcher.Constraint("Diameter", 16, Q("6 mm")),
    Sketcher.Constraint("Diameter", 17, Q("4 mm")),
    Sketcher.Constraint("Radius", 1, Q("10.000001 mm")),
    Sketcher.Constraint("Radius", 2, Q("300.000001 mm")),
    Sketcher.Constraint("DistanceX", 6, 1, 6, 2, Q("104 mm")),
    Sketcher.Constraint("DistanceY", 0, 1, 0, 2, Q("45 mm")),
    Sketcher.Constraint("DistanceX", -1, 1, 17, 3, Q("29 mm")),
    Sketcher.Constraint("DistanceX", -1, 1, 18, 3, Q("31 mm")),
    Sketcher.Constraint("DistanceY", 18, 3, -1, 1, Q("31 mm")),
    Sketcher.Constraint("DistanceX", -1, 1, 19, 3, Q("21 mm")),
    Sketcher.Constraint("DistanceY", 19, 3, -1, 1, Q("21 mm")),
    Sketcher.Constraint("DistanceY", 22, 3, -1, 1, Q("100 mm")),
    Sketcher.Constraint("DistanceY", 7, 3, 17, 3, Q("32.999999 mm")),
    Sketcher.Constraint("DistanceX", 1, 2, -1, 1, Q("74.5 mm")),
    Sketcher.Constraint("DistanceX", -1, 1, 16, 3, Q("162.6345 mm")),
    Sketcher.Constraint("DistanceY", 16, 3, -1, 1, Q("162.634619 mm")),
])
pad4 = body4.newObject("PartDesign::Pad", "Pad003")
pad4.Profile = sketch4
pad4.Length = 5

doc.recompute()
